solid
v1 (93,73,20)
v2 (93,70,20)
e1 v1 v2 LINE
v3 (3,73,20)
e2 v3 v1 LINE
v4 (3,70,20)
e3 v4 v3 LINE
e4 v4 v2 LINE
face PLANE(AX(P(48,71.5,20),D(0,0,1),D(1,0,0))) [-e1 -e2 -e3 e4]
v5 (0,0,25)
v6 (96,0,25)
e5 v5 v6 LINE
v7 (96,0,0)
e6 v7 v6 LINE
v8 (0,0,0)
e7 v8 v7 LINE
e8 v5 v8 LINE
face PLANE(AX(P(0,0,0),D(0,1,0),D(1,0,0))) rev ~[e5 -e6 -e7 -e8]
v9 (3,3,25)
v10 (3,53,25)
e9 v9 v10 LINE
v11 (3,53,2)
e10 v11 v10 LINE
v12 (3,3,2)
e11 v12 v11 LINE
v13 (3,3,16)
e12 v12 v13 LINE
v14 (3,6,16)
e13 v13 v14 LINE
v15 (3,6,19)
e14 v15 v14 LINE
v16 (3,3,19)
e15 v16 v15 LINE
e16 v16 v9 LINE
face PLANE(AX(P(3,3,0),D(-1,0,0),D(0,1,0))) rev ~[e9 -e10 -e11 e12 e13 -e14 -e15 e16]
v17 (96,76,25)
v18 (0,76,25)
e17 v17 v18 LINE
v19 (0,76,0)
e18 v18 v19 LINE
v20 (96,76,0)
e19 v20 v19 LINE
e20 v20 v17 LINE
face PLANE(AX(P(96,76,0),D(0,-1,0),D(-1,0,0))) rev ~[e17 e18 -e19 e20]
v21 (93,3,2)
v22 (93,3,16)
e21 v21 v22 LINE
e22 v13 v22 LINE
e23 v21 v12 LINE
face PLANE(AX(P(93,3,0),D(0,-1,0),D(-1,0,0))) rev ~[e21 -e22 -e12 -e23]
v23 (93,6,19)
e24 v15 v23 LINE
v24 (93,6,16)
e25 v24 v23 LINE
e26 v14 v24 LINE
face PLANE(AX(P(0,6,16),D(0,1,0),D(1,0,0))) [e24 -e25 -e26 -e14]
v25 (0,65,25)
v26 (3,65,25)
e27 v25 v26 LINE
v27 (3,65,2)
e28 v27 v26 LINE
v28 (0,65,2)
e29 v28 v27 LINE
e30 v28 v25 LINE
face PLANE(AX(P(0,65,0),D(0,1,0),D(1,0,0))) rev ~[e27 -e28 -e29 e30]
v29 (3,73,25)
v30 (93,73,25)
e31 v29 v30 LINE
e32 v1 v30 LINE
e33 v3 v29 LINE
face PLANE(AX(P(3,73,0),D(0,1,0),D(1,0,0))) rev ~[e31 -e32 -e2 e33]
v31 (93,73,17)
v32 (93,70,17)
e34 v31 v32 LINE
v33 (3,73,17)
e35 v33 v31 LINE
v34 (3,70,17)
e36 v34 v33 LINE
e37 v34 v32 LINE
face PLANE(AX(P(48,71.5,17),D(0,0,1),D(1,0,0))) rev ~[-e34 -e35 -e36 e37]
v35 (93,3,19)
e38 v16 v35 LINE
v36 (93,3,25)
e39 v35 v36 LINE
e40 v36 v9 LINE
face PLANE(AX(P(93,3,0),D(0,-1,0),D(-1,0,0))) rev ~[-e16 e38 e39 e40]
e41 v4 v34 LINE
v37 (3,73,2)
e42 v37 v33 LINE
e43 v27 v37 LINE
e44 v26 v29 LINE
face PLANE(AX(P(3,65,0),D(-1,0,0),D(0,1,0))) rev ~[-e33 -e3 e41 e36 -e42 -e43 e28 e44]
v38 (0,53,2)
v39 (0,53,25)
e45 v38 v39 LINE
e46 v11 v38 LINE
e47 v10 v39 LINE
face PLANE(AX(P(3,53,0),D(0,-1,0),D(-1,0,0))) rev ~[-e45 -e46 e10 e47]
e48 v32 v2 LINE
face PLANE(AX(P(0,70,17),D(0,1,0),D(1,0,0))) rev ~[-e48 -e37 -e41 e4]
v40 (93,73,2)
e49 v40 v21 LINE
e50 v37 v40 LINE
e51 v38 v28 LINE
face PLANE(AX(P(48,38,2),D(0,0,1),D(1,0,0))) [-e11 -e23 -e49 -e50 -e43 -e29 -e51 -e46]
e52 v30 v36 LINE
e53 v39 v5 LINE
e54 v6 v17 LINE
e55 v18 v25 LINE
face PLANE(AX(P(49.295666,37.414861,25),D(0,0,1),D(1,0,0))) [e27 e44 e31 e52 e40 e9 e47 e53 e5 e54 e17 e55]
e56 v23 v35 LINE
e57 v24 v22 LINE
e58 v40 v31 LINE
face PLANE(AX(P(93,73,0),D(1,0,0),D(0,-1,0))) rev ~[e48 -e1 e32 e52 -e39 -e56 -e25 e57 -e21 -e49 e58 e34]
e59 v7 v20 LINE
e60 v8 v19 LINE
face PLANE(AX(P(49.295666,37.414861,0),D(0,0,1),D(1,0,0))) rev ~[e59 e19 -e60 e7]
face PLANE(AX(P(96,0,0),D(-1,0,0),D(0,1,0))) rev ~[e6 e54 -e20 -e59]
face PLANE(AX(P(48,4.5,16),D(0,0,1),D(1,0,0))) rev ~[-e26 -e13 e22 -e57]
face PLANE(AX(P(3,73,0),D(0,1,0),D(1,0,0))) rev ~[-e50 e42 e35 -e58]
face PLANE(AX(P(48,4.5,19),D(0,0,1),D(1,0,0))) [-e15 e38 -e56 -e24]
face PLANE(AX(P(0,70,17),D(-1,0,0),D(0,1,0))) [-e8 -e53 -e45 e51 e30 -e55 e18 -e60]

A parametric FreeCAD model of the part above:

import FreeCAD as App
import Part
import Sketcher
from FreeCAD import Vector

doc = App.newDocument("Part")
body = doc.addObject("PartDesign::Body", "Body")

sketch1 = doc.addObject("Sketcher::SketchObject", "Sketch")
body.addObject(sketch1)
sketch1.AttachmentSupport = (doc.XY_Plane, [""])
sketch1.MapMode = "FlatFace"
sketch1.addGeometry([
    Part.LineSegment(Vector(0, 0, 0), Vector(96, 0, 0)),
    Part.LineSegment(Vector(96, 0, 0), Vector(96, 76, 0)),
    Part.LineSegment(Vector(96, 76, 0), Vector(0, 76, 0)),
    Part.LineSegment(Vector(0, 76, 0), Vector(0, 65, 0)),
    Part.LineSegment(Vector(0, 65, 0), Vector(3, 65, 0)),
    Part.LineSegment(Vector(3, 65, 0), Vector(3, 73, 0)),
    Part.LineSegment(Vector(3, 73, 0), Vector(93, 73, 0)),
    Part.LineSegment(Vector(93, 73, 0), Vector(93, 3, 0)),
    Part.LineSegment(Vector(93, 3, 0), Vector(3, 3, 0)),
    Part.LineSegment(Vector(3, 3, 0), Vector(3, 53, 0)),
    Part.LineSegment(Vector(3, 53, 0), Vector(0, 53, 0)),
    Part.LineSegment(Vector(0, 53, 0), Vector(0, 0, 0)),
], False)
sketch1.addConstraint([
    Sketcher.Constraint("Coincident", 0, 2, 1, 1),
    Sketcher.Constraint("Coincident", 1, 2, 2, 1),
    Sketcher.Constraint("Coincident", 2, 2, 3, 1),
    Sketcher.Constraint("Coincident", 3, 2, 4, 1),
    Sketcher.Constraint("Coincident", 4, 2, 5, 1),
    Sketcher.Constraint("Coincident", 5, 2, 6, 1),
    Sketcher.Constraint("Coincident", 6, 2, 7, 1),
    Sketcher.Constraint("Coincident", 7, 2, 8, 1),
    Sketcher.Constraint("Coincident", 8, 2, 9, 1),
    Sketcher.Constraint("Coincident", 9, 2, 10, 1),
    Sketcher.Constraint("Coincident", 10, 2, 11, 1),
    Sketcher.Constraint("Coincident", 11, 2, 0, 1),
    Sketcher.Constraint("Horizontal", 0),
    Sketcher.Constraint("Vertical", 1),
    Sketcher.Constraint("Horizontal", 2),
    Sketcher.Constraint("Vertical", 3),
    Sketcher.Constraint("Horizontal", 4),
    Sketcher.Constraint("Vertical", 5),
    Sketcher.Constraint("Horizontal", 6),
    Sketcher.Constraint("Vertical", 7),
    Sketcher.Constraint("Horizontal", 8),
    Sketcher.Constraint("Vertical", 9),
    Sketcher.Constraint("Horizontal", 10),
    Sketcher.Constraint("Vertical", 11),
    Sketcher.Constraint("Coincident", 11, 2, -1, 1),
    Sketcher.Constraint("PointOnObject", 2, 2, -2),
    Sketcher.Constraint("Vertical", 5, 2, 8, 2),
    Sketcher.Constraint("DistanceX", 0, 1, 0, 2, 96.0),
    Sketcher.Constraint("DistanceX", 4, 1, 4, 2, 3.0),
    Sketcher.Constraint("DistanceX", 6, 1, 6, 2, 90.0),
    Sketcher.Constraint("DistanceY", 1, 1, 1, 2, 76.0),
    Sketcher.Constraint("DistanceY", 3, 2, 3, 1, 11.0),
    Sketcher.Constraint("DistanceY", 5, 1, 5, 2, 8.0),
    Sketcher.Constraint("DistanceY", 7, 2, 7, 1, 70.0),
    Sketcher.Constraint("DistanceY", 9, 1, 9, 2, 50.0),
])
pad1 = doc.addObject("PartDesign::Pad", "Pad")
body.addObject(pad1)
pad1.Profile = sketch1
pad1.Length = 25

sketch2 = doc.addObject("Sketcher::SketchObject", "Sketch001")
body.addObject(sketch2)
sketch2.AttachmentSupport = (doc.XY_Plane, [""])
sketch2.MapMode = "FlatFace"
sketch2.addGeometry([
    Part.LineSegment(Vector(0, 76, 0), Vector(0, 0, 0)),
    Part.LineSegment(Vector(0, 0, 0), Vector(96, 0, 0)),
    Part.LineSegment(Vector(96, 0, 0), Vector(96, 76, 0)),
    Part.LineSegment(Vector(96, 76, 0), Vector(0, 76, 0)),
], False)
sketch2.addConstraint([
    Sketcher.Constraint("Coincident", 0, 2, 1, 1),
    Sketcher.Constraint("Coincident", 1, 2, 2, 1),
    Sketcher.Constraint("Coincident", 2, 2, 3, 1),
    Sketcher.Constraint("Coincident", 3, 2, 0, 1),
    Sketcher.Constraint("Vertical", 0),
    Sketcher.Constraint("Horizontal", 1),
    Sketcher.Constraint("Vertical", 2),
    Sketcher.Constraint("Horizontal", 3),
    Sketcher.Constraint("Coincident", 0, 2, -1, 1),
    Sketcher.Constraint("DistanceX", 1, 1, 1, 2, 96.0),
    Sketcher.Constraint("DistanceY", 0, 2, 0, 1, 76.0),
])
pad2 = doc.addObject("PartDesign::Pad", "Pad001")
body.addObject(pad2)
pad2.Profile = sketch2
pad2.Length = 2

sketch3 = doc.addObject("Sketcher::SketchObject", "Sketch002")
body.addObject(sketch3)
sketch3.AttachmentSupport = (doc.XY_Plane, [""])
sketch3.MapMode = "FlatFace"
sketch3.AttachmentOffset = App.Placement(Vector(0, 0, 16), App.Rotation())
sketch3.addGeometry([
    Part.LineSegment(Vector(0, 6, 0), Vector(0, 3, 0)),
    Part.LineSegment(Vector(0, 3, 0), Vector(96, 3, 0)),
    Part.LineSegment(Vector(96, 3, 0), Vector(96, 6, 0)),
    Part.LineSegment(Vector(96, 6, 0), Vector(0, 6, 0)),
], False)
sketch3.addConstraint([
    Sketcher.Constraint("Coincident", 0, 2, 1, 1),
    Sketcher.Constraint("Coincident", 1, 2, 2, 1),
    Sketcher.Constraint("Coincident", 2, 2, 3, 1),
    Sketcher.Constraint("Coincident", 3, 2, 0, 1),
    Sketcher.Constraint("Vertical", 0),
    Sketcher.Constraint("Horizontal", 1),
    Sketcher.Constraint("Vertical", 2),
    Sketcher.Constraint("Horizontal", 3),
    Sketcher.Constraint("PointOnObject", 0, 2, -2),
    Sketcher.Constraint("DistanceX", 1, 1, 1, 2, 96.0),
    Sketcher.Constraint("DistanceY", 0, 2, 0, 1, 3.0),
    Sketcher.Constraint("DistanceY", -1, 1, 0, 2, 3.0),
])
pad3 = doc.addObject("PartDesign::Pad", "Pad002")
body.addObject(pad3)
pad3.Profile = sketch3
pad3.Length = 3

sketch4 = doc.addObject("Sketcher::SketchObject", "Sketch003")
body.addObject(sketch4)
sketch4.AttachmentSupport = (doc.XY_Plane, [""])
sketch4.MapMode = "FlatFace"
sketch4.AttachmentOffset = App.Placement(Vector(0, 0, 17), App.Rotation())
sketch4.addGeometry([
    Part.LineSegment(Vector(0, 73, 0), Vector(0, 70, 0)),
    Part.LineSegment(Vector(0, 70, 0), Vector(96, 70, 0)),
    Part.LineSegment(Vector(96, 70, 0), Vector(96, 73, 0)),
    Part.LineSegment(Vector(96, 73, 0), Vector(0, 73, 0)),
], False)
sketch4.addConstraint([
    Sketcher.Constraint("Coincident", 0, 2, 1, 1),
    Sketcher.Constraint("Coincident", 1, 2, 2, 1),
    Sketcher.Constraint("Coincident", 2, 2, 3, 1),
    Sketcher.Constraint("Coincident", 3, 2, 0, 1),
    Sketcher.Constraint("Vertical", 0),
    Sketcher.Constraint("Horizontal", 1),
    Sketcher.Constraint("Vertical", 2),
    Sketcher.Constraint("Horizontal", 3),
    Sketcher.Constraint("PointOnObject", 0, 2, -2),
    Sketcher.Constraint("DistanceX", 1, 1, 1, 2, 96.0),
    Sketcher.Constraint("DistanceY", 0, 2, 0, 1, 3.0),
    Sketcher.Constraint("DistanceY", -1, 1, 0, 2, 70.0),
])
pad4 = doc.addObject("PartDesign::Pad", "Pad003")
body.addObject(pad4)
pad4.Profile = sketch4
pad4.Length = 3

doc.recompute()
